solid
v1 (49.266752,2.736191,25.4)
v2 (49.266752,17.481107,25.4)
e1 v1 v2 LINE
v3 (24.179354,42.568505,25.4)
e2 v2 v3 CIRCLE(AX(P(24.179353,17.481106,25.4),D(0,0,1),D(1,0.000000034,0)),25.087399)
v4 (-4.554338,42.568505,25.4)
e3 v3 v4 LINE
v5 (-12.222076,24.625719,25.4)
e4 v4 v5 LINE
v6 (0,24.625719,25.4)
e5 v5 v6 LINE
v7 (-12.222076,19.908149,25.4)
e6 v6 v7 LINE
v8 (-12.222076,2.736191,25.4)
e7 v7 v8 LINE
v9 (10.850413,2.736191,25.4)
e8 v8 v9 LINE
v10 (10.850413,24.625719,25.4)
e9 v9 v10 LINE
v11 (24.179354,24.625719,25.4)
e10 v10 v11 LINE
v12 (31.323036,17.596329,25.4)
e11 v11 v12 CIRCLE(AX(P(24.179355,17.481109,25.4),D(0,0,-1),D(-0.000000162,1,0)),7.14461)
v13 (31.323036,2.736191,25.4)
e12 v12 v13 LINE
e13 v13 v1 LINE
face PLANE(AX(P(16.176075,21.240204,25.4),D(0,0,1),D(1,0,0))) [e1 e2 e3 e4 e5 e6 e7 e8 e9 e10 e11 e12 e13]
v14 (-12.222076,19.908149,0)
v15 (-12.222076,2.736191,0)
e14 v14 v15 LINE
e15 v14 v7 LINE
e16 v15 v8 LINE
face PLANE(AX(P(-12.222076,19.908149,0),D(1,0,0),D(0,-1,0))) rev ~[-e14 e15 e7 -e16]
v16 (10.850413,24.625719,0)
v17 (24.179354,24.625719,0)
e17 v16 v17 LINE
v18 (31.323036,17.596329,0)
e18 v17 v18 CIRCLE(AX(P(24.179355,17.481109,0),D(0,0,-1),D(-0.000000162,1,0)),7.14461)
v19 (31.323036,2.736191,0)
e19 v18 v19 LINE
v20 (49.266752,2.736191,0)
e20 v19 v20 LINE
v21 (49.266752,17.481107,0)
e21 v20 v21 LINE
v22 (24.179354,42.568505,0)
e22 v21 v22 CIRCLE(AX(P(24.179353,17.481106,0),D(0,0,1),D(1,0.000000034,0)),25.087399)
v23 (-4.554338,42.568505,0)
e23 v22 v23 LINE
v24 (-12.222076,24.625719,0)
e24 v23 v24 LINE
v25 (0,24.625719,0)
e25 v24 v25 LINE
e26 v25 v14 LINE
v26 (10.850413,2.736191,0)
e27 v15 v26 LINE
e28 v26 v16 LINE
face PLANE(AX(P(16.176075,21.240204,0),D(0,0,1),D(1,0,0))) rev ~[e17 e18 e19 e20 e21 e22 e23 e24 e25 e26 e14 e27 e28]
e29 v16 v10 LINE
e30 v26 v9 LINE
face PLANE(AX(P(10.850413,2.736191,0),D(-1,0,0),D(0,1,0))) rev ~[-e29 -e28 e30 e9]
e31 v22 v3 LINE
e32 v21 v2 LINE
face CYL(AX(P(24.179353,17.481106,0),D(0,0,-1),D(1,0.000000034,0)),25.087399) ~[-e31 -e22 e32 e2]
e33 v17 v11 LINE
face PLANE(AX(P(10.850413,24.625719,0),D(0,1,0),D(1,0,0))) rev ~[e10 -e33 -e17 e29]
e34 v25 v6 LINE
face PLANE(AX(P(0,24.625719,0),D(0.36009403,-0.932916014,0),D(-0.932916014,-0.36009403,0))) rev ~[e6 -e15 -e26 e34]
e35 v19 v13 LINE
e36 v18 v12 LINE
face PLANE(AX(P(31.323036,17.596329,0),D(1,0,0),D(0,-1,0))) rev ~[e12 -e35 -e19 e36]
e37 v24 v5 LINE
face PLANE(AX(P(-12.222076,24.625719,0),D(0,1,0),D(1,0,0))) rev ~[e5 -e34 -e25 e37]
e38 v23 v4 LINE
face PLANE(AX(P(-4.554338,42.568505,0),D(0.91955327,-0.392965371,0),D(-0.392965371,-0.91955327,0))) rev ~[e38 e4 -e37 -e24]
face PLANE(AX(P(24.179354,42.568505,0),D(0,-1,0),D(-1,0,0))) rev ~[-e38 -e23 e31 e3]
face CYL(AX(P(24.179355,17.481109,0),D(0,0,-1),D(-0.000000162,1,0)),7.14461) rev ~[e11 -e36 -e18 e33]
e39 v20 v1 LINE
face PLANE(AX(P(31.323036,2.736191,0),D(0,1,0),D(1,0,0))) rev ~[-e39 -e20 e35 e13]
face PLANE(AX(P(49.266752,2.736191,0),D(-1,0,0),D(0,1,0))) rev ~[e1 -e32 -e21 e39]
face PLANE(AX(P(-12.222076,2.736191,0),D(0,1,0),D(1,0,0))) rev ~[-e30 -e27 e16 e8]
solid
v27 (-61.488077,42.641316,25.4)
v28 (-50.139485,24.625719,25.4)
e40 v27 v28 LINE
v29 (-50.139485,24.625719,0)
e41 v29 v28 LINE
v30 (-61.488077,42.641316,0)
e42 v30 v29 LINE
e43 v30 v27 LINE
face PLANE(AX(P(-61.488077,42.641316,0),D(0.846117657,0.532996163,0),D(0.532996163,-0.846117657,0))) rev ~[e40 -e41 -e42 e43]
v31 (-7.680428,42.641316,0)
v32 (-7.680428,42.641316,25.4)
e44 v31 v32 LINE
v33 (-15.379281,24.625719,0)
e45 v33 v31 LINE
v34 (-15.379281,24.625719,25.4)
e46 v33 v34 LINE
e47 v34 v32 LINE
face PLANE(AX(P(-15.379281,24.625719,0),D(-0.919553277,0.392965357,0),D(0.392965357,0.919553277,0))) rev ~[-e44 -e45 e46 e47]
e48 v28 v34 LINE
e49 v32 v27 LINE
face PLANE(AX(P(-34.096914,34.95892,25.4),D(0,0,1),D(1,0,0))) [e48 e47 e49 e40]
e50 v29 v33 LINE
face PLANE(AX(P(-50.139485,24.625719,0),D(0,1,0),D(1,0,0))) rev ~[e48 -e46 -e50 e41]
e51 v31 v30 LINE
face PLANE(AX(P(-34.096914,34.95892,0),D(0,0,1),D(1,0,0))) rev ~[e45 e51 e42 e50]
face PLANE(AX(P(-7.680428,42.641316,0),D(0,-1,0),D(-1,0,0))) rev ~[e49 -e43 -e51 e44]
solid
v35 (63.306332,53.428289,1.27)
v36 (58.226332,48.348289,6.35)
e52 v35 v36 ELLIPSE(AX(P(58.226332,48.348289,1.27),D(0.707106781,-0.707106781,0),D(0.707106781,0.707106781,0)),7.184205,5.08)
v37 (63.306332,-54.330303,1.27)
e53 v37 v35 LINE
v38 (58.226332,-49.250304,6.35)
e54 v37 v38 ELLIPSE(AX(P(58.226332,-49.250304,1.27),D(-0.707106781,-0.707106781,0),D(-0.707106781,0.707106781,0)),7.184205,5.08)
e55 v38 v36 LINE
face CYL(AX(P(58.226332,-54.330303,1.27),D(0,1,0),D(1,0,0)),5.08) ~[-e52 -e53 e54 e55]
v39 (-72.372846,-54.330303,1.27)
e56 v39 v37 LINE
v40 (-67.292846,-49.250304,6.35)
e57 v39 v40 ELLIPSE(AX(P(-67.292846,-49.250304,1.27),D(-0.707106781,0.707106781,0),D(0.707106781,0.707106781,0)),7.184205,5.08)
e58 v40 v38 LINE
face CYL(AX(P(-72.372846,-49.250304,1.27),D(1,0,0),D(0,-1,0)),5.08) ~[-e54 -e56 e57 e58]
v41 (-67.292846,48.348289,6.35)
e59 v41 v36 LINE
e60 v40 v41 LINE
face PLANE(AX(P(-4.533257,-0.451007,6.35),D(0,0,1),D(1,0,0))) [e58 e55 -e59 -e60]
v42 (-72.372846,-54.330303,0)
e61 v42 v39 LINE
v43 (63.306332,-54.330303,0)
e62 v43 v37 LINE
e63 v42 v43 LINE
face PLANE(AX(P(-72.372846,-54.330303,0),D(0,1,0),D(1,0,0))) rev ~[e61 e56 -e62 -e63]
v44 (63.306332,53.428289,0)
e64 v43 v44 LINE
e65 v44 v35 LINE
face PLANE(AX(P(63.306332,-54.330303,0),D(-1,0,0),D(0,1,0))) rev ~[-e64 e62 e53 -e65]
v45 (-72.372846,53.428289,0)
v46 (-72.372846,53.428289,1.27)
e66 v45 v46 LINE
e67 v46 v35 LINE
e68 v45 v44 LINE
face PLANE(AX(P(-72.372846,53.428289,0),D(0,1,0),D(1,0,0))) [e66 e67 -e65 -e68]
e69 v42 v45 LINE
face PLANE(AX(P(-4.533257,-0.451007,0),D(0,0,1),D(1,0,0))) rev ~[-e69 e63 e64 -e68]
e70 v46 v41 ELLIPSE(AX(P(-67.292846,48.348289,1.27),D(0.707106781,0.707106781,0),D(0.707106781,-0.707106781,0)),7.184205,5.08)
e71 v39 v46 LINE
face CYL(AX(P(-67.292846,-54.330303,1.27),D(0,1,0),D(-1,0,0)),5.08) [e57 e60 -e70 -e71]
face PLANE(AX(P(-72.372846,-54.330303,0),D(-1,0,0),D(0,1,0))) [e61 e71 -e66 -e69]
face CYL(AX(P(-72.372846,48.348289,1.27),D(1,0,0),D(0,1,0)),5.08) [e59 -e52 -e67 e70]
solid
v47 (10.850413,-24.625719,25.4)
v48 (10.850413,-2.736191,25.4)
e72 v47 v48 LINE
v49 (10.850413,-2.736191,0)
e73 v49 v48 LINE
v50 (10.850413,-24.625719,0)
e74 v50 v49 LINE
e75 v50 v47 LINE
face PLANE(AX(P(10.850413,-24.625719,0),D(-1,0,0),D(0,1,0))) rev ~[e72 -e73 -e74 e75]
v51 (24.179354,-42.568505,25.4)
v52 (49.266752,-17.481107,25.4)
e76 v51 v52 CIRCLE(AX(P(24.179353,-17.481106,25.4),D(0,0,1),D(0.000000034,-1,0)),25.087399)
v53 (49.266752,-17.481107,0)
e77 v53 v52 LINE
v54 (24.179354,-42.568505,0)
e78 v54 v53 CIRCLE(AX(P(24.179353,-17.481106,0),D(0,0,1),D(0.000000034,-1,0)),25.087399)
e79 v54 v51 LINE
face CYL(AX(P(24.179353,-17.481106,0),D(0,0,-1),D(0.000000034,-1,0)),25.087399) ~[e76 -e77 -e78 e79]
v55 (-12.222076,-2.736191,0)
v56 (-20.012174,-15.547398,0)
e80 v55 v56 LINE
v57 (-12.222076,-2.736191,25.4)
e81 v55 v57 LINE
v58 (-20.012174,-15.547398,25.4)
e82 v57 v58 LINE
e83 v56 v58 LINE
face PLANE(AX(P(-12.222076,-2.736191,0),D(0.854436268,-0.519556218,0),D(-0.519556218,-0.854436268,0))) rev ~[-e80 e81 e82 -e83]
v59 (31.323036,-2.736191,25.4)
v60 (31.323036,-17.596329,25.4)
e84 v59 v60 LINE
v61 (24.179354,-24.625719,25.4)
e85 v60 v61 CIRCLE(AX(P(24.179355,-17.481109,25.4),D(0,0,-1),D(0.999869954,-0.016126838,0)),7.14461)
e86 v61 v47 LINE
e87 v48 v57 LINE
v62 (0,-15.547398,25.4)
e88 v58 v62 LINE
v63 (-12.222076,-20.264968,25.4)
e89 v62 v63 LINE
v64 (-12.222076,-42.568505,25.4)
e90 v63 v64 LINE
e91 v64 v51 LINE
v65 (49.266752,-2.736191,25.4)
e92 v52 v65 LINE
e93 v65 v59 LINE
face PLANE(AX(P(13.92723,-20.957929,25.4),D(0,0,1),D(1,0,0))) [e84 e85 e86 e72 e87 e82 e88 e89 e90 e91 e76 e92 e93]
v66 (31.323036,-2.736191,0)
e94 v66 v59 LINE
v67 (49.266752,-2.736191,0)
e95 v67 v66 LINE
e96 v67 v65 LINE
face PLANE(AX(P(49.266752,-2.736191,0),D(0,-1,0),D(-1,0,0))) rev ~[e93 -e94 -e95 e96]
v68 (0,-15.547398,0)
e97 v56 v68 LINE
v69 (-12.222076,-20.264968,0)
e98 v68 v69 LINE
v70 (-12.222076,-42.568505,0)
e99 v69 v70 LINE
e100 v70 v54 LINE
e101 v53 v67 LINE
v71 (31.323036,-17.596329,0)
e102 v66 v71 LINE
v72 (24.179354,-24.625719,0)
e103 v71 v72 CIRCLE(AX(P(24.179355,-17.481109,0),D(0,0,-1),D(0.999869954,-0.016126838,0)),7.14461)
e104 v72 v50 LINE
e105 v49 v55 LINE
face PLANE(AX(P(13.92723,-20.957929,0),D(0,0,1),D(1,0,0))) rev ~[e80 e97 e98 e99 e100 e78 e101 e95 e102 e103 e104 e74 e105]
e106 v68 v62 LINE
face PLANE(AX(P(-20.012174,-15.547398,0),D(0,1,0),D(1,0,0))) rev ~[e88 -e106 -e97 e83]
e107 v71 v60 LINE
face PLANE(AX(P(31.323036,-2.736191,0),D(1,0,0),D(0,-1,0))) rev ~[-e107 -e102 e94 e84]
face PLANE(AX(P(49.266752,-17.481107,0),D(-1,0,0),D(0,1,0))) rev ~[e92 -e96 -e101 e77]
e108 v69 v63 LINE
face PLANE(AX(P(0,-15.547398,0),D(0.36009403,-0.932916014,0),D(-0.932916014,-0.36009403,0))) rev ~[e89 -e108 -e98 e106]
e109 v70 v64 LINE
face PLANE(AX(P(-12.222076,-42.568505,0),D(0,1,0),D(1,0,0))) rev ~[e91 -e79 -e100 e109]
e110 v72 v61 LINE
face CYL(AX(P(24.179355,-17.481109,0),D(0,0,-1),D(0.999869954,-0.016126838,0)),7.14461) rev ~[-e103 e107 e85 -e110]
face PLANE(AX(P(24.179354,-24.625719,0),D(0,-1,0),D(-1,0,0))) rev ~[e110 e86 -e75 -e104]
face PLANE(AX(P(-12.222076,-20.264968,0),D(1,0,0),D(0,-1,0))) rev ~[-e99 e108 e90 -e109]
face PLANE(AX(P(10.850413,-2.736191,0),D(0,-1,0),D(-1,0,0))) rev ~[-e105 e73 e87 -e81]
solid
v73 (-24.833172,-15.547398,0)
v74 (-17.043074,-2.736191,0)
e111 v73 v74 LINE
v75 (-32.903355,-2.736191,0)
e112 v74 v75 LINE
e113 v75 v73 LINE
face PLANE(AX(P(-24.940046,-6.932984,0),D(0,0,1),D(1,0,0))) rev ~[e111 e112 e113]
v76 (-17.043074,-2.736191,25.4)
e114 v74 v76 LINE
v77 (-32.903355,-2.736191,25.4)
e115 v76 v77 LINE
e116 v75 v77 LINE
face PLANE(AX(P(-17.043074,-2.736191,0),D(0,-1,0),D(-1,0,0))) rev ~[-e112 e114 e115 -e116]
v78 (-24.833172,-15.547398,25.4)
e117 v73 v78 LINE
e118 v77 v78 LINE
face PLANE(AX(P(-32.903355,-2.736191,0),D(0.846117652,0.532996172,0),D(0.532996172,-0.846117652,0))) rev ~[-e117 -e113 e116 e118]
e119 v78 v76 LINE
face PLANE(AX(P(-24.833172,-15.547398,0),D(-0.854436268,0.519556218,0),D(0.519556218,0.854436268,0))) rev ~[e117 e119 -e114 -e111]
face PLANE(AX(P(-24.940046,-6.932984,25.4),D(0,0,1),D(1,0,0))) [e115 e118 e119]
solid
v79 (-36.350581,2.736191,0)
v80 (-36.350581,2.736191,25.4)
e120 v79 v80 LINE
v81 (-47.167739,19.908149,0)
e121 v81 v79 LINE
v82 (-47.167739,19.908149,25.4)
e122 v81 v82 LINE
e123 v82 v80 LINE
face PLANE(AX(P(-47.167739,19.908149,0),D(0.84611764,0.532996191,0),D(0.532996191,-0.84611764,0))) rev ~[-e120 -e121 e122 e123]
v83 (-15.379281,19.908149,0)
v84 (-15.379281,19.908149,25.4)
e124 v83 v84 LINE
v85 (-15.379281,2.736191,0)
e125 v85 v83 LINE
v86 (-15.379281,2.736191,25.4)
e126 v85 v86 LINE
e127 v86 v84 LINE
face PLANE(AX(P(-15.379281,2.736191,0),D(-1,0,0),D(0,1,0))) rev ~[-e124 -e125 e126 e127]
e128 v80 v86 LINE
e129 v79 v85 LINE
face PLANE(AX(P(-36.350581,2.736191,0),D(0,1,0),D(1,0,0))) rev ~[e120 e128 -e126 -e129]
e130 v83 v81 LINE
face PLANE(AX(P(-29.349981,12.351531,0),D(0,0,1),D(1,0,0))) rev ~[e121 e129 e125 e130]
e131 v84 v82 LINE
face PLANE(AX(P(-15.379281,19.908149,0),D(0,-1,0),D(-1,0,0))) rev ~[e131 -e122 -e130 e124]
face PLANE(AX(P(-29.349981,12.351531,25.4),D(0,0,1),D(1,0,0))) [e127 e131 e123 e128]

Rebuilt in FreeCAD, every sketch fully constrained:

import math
import FreeCAD as App
import Part
import Sketcher

V = App.Vector
Q = App.Units.Quantity


def edges_at(feature, points):
    """Names of the edges that pass closest to the given points."""
    edges = feature.Shape.Edges
    near = lambda p: min(range(len(edges)), key=lambda i: edges[i].distToShape(Part.Vertex(*p))[0])
    return sorted({f"Edge{near(p) + 1}" for p in points})


def add_polygon(sketch, points):
    """Adds a closed chain of lines whose ends are joined by coincident constraints."""
    first, n = sketch.GeometryCount, len(points)
    for a, b in zip(points, points[1:] + points[:1]):
        sketch.addGeometry(Part.LineSegment(App.Vector(*a, 0), App.Vector(*b, 0)), False)
    for i in range(n):
        sketch.addConstraint(Sketcher.Constraint("Coincident", first + i, 2, first + (i + 1) % n, 1))

doc = App.newDocument("Part")
body = doc.addObject("PartDesign::Body", "Body")
body.AllowCompound = True

# Sketch on XY plane
sketch1 = doc.addObject("Sketcher::SketchObject", "Sketch")
body.addObject(sketch1)
sketch1.AttachmentSupport = (doc.XY_Plane, [""])
sketch1.MapMode = "FlatFace"
add_polygon(sketch1, [(-47, 20), (-36, 3), (-15, 3), (-15, 20)])  # lines 0-3
sketch1.addGeometry(Part.LineSegment(V(24, 43, 0), V(-5, 43, 0)), False)  # 4
sketch1.addGeometry(Part.LineSegment(V(-5, 43, 0), V(-12, 25, 0)), False)  # 5
sketch1.addGeometry(Part.LineSegment(V(-12, 25, 0), V(0, 25, 0)), False)  # 6
sketch1.addGeometry(Part.LineSegment(V(0, 25, 0), V(-12, 20, 0)), False)  # 7
sketch1.addGeometry(Part.LineSegment(V(-12, 20, 0), V(-12, 3, 0)), False)  # 8
sketch1.addGeometry(Part.LineSegment(V(-12, 3, 0), V(11, 3, 0)), False)  # 9
sketch1.addGeometry(Part.LineSegment(V(11, 3, 0), V(11, 25, 0)), False)  # 10
sketch1.addGeometry(Part.LineSegment(V(11, 25, 0), V(24, 25, 0)), False)  # 11
sketch1.addGeometry(Part.ArcOfCircle(Part.Circle(V(24, 17, 0), V(0, 0, 1), 7), math.radians(1), math.radians(90)), False)  # 12
sketch1.addGeometry(Part.LineSegment(V(31, 18, 0), V(31, 3, 0)), False)  # 13
sketch1.addGeometry(Part.LineSegment(V(31, 3, 0), V(49, 3, 0)), False)  # 14
sketch1.addGeometry(Part.LineSegment(V(49, 3, 0), V(49, 17, 0)), False)  # 15
sketch1.addGeometry(Part.ArcOfCircle(Part.Circle(V(24, 17, 0), V(0, 0, 1), 25), math.radians(0), math.radians(90)), False)  # 16
sketch1.addGeometry(Part.LineSegment(V(11, -3, 0), V(-12, -3, 0)), False)  # 17
sketch1.addGeometry(Part.LineSegment(V(-12, -3, 0), V(-20, -16, 0)), False)  # 18
sketch1.addGeometry(Part.LineSegment(V(-20, -16, 0), V(0, -16, 0)), False)  # 19
sketch1.addGeometry(Part.LineSegment(V(0, -16, 0), V(-12, -20, 0)), False)  # 20
sketch1.addGeometry(Part.LineSegment(V(-12, -20, 0), V(-12, -43, 0)), False)  # 21
sketch1.addGeometry(Part.LineSegment(V(-12, -43, 0), V(24, -43, 0)), False)  # 22
sketch1.addGeometry(Part.ArcOfCircle(Part.Circle(V(24, -17, 0), V(0, 0, 1), 25), math.radians(-90), math.radians(0)), False)  # 23
sketch1.addGeometry(Part.LineSegment(V(49, -17, 0), V(49, -3, 0)), False)  # 24
sketch1.addGeometry(Part.LineSegment(V(49, -3, 0), V(31, -3, 0)), False)  # 25
sketch1.addGeometry(Part.LineSegment(V(31, -3, 0), V(31, -18, 0)), False)  # 26
sketch1.addGeometry(Part.ArcOfCircle(Part.Circle(V(24, -17, 0), V(0, 0, 1), 7), math.radians(-90), math.radians(-1)), False)  # 27
sketch1.addGeometry(Part.LineSegment(V(24, -25, 0), V(11, -25, 0)), False)  # 28
sketch1.addGeometry(Part.LineSegment(V(11, -25, 0), V(11, -3, 0)), False)  # 29
add_polygon(sketch1, [(-50, 25), (-15, 25), (-8, 43), (-61, 43)])  # lines 30-33
add_polygon(sketch1, [(-33, -3), (-25, -16), (-17, -3)])  # lines 34-36
sketch1.addConstraint([
    Sketcher.Constraint("Coincident", 4, 2, 5, 1),
    Sketcher.Constraint("Coincident", 5, 2, 6, 1),
    Sketcher.Constraint("Coincident", 6, 2, 7, 1),
    Sketcher.Constraint("Coincident", 7, 2, 8, 1),
    Sketcher.Constraint("Coincident", 8, 2, 9, 1),
    Sketcher.Constraint("Coincident", 9, 2, 10, 1),
    Sketcher.Constraint("Coincident", 10, 2, 11, 1),
    Sketcher.Constraint("Tangent", 11, 2, 12, 2),
    Sketcher.Constraint("Coincident", 12, 1, 13, 1),
    Sketcher.Constraint("Coincident", 13, 2, 14, 1),
    Sketcher.Constraint("Coincident", 14, 2, 15, 1),
    Sketcher.Constraint("Tangent", 15, 2, 16, 1),
    Sketcher.Constraint("Tangent", 16, 2, 4, 1),
    Sketcher.Constraint("Coincident", 17, 2, 18, 1),
    Sketcher.Constraint("Coincident", 18, 2, 19, 1),
    Sketcher.Constraint("Coincident", 19, 2, 20, 1),
    Sketcher.Constraint("Coincident", 20, 2, 21, 1),
    Sketcher.Constraint("Coincident", 21, 2, 22, 1),
    Sketcher.Constraint("Tangent", 22, 2, 23, 1),
    Sketcher.Constraint("Tangent", 23, 2, 24, 1),
    Sketcher.Constraint("Coincident", 24, 2, 25, 1),
    Sketcher.Constraint("Coincident", 25, 2, 26, 1),
    Sketcher.Constraint("Coincident", 26, 2, 27, 2),
    Sketcher.Constraint("Tangent", 27, 1, 28, 1),
    Sketcher.Constraint("Coincident", 28, 2, 29, 1),
    Sketcher.Constraint("Coincident", 29, 2, 17, 1),
    Sketcher.Constraint("Horizontal", 1),
    Sketcher.Constraint("Vertical", 2),
    Sketcher.Constraint("Horizontal", 3),
    Sketcher.Constraint("Horizontal", 4),
    Sketcher.Constraint("Horizontal", 6),
    Sketcher.Constraint("Vertical", 8),
    Sketcher.Constraint("Horizontal", 9),
    Sketcher.Constraint("Vertical", 10),
    Sketcher.Constraint("Horizontal", 11),
    Sketcher.Constraint("Vertical", 13),
    Sketcher.Constraint("Horizontal", 14),
    Sketcher.Constraint("Vertical", 15),
    Sketcher.Constraint("Horizontal", 17),
    Sketcher.Constraint("Horizontal", 19),
    Sketcher.Constraint("Vertical", 21),
    Sketcher.Constraint("Horizontal", 22),
    Sketcher.Constraint("Vertical", 24),
    Sketcher.Constraint("Horizontal", 25),
    Sketcher.Constraint("Vertical", 26),
    Sketcher.Constraint("Horizontal", 28),
    Sketcher.Constraint("Vertical", 29),
    Sketcher.Constraint("Horizontal", 30),
    Sketcher.Constraint("Horizontal", 32),
    Sketcher.Constraint("Horizontal", 36),
    Sketcher.Constraint("Coincident", 16, 3, 12, 3),
    Sketcher.Constraint("Coincident", 27, 3, 23, 3),
    Sketcher.Constraint("Equal", 16, 23),
    Sketcher.Constraint("Equal", 12, 27),
    Sketcher.Constraint("Symmetric", 12, 3, 23, 3, -1),
    Sketcher.Constraint("Symmetric", 8, 2, 17, 2, -1),
    Sketcher.Constraint("Symmetric", 13, 2, 25, 2, -1),
    Sketcher.Constraint("PointOnObject", 6, 2, -2),
    Sketcher.Constraint("PointOnObject", 19, 2, -2),
    Sketcher.Constraint("Parallel", 7, 20),
    Sketcher.Constraint("Parallel", 5, 31),
    Sketcher.Constraint("Parallel", 0, 33),
    Sketcher.Constraint("Parallel", 33, 34),
    Sketcher.Constraint("Parallel", 18, 35),
    Sketcher.Constraint("Horizontal", 3, 2, 7, 2),
    Sketcher.Constraint("Horizontal", 1, 2, 8, 2),
    Sketcher.Constraint("Horizontal", 6, 2, 10, 2),
    Sketcher.Constraint("Horizontal", 9, 2, 13, 2),
    Sketcher.Constraint("Horizontal", 11, 2, 30, 2),
    Sketcher.Constraint("Horizontal", 19, 2, 34, 2),
    Sketcher.Constraint("Horizontal", 29, 2, 35, 2),
    Sketcher.Constraint("Vertical", 5, 2, 7, 2),
    Sketcher.Constraint("Vertical", 17, 2, 20, 2),
    Sketcher.Constraint("Vertical", 10, 2, 28, 2),
    Sketcher.Constraint("Vertical", 2, 2, 30, 2),
    Sketcher.Constraint("Radius", 16, Q("25.087399 mm")),
    Sketcher.Constraint("Radius", 12, Q("7.14461 mm")),
    Sketcher.Constraint("DistanceX", 1, 1, 1, 2, Q("20.9713 mm")),
    Sketcher.Constraint("DistanceX", 34, 2, 20, 2, Q("0.4964998 in")),
    Sketcher.Constraint("Distance", 0, Q("20.295001 mm")),
    Sketcher.Constraint("DistanceX", 9, 1, 9, 2, Q("23.072489 mm")),
    Sketcher.Constraint("DistanceX", 11, 1, 11, 2, Q("13.328941 mm")),
    Sketcher.Constraint("DistanceX", 32, 2, 32, 1, Q("53.807649 mm")),
    Sketcher.Constraint("DistanceX", 36, 2, 36, 1, Q("15.860281 mm")),
    Sketcher.Constraint("DistanceY", 2, 1, 2, 2, Q("17.171958 mm")),
    Sketcher.Constraint("DistanceY", 13, 2, 13, 1, Q("14.860138 mm")),
    Sketcher.Constraint("DistanceY", 27, 3, 0, 2, Q("20.2173 mm")),
    Sketcher.Constraint("DistanceX", 3, 2, 4, 2, Q("42.613401 mm")),
    Sketcher.Constraint("DistanceX", 18, 2, 17, 2, Q("7.790098 mm")),
    Sketcher.Constraint("DistanceX", 32, 2, 5, 2, Q("49.266001 mm")),
    Sketcher.Constraint("Distance", 7, Q("13.100939 mm")),
    Sketcher.Constraint("Distance", 33, Q("21.292071 mm")),
    Sketcher.Constraint("DistanceX", 6, 1, 6, 2, Q("12.222076 mm")),
])
pad1 = doc.addObject("PartDesign::Pad", "Pad")
body.addObject(pad1)
pad1.Profile = sketch1
pad1.Length = Q("1 in")
body2 = doc.addObject("PartDesign::Body", "Body001")

# Sketch on XY plane
sketch2 = doc.addObject("Sketcher::SketchObject", "Sketch001")
body2.addObject(sketch2)
sketch2.AttachmentSupport = (doc.getObject("XY_Plane001"), [""])
sketch2.MapMode = "FlatFace"
add_polygon(sketch2, [(-72, 53), (-72, -54), (63, -54), (63, 53)])  # lines 0-3
sketch2.addConstraint([
    Sketcher.Constraint("Vertical", 0),
    Sketcher.Constraint("Horizontal", 1),
    Sketcher.Constraint("Vertical", 2),
    Sketcher.Constraint("Horizontal", 3),
    Sketcher.Constraint("DistanceX", 1, 1, 1, 2, Q("5.3416999 in")),
    Sketcher.Constraint("DistanceY", 0, 2, 0, 1, Q("107.758593 mm")),
    Sketcher.Constraint("DistanceX", -1, 1, 1, 2, Q("63.306332 mm")),
    Sketcher.Constraint("DistanceY", -1, 1, 2, 2, Q("53.428289 mm")),
])
pad2 = doc.addObject("PartDesign::Pad", "Pad001")
body2.addObject(pad2)
pad2.Profile = sketch2
pad2.Length = Q("0.25 in")
doc.recompute()

fillet = doc.addObject("PartDesign::Fillet", "Fillet")
body2.addObject(fillet)
fillet.Base = (pad2, edges_at(pad2, [
    (-4.533, 53.428, 6.35),
    (-72.373, -0.451, 6.35),
    (63.306, -0.451, 6.35),
    (-4.533, -54.33, 6.35),
]))
fillet.Radius = Q("0.2 in")

doc.recompute()
